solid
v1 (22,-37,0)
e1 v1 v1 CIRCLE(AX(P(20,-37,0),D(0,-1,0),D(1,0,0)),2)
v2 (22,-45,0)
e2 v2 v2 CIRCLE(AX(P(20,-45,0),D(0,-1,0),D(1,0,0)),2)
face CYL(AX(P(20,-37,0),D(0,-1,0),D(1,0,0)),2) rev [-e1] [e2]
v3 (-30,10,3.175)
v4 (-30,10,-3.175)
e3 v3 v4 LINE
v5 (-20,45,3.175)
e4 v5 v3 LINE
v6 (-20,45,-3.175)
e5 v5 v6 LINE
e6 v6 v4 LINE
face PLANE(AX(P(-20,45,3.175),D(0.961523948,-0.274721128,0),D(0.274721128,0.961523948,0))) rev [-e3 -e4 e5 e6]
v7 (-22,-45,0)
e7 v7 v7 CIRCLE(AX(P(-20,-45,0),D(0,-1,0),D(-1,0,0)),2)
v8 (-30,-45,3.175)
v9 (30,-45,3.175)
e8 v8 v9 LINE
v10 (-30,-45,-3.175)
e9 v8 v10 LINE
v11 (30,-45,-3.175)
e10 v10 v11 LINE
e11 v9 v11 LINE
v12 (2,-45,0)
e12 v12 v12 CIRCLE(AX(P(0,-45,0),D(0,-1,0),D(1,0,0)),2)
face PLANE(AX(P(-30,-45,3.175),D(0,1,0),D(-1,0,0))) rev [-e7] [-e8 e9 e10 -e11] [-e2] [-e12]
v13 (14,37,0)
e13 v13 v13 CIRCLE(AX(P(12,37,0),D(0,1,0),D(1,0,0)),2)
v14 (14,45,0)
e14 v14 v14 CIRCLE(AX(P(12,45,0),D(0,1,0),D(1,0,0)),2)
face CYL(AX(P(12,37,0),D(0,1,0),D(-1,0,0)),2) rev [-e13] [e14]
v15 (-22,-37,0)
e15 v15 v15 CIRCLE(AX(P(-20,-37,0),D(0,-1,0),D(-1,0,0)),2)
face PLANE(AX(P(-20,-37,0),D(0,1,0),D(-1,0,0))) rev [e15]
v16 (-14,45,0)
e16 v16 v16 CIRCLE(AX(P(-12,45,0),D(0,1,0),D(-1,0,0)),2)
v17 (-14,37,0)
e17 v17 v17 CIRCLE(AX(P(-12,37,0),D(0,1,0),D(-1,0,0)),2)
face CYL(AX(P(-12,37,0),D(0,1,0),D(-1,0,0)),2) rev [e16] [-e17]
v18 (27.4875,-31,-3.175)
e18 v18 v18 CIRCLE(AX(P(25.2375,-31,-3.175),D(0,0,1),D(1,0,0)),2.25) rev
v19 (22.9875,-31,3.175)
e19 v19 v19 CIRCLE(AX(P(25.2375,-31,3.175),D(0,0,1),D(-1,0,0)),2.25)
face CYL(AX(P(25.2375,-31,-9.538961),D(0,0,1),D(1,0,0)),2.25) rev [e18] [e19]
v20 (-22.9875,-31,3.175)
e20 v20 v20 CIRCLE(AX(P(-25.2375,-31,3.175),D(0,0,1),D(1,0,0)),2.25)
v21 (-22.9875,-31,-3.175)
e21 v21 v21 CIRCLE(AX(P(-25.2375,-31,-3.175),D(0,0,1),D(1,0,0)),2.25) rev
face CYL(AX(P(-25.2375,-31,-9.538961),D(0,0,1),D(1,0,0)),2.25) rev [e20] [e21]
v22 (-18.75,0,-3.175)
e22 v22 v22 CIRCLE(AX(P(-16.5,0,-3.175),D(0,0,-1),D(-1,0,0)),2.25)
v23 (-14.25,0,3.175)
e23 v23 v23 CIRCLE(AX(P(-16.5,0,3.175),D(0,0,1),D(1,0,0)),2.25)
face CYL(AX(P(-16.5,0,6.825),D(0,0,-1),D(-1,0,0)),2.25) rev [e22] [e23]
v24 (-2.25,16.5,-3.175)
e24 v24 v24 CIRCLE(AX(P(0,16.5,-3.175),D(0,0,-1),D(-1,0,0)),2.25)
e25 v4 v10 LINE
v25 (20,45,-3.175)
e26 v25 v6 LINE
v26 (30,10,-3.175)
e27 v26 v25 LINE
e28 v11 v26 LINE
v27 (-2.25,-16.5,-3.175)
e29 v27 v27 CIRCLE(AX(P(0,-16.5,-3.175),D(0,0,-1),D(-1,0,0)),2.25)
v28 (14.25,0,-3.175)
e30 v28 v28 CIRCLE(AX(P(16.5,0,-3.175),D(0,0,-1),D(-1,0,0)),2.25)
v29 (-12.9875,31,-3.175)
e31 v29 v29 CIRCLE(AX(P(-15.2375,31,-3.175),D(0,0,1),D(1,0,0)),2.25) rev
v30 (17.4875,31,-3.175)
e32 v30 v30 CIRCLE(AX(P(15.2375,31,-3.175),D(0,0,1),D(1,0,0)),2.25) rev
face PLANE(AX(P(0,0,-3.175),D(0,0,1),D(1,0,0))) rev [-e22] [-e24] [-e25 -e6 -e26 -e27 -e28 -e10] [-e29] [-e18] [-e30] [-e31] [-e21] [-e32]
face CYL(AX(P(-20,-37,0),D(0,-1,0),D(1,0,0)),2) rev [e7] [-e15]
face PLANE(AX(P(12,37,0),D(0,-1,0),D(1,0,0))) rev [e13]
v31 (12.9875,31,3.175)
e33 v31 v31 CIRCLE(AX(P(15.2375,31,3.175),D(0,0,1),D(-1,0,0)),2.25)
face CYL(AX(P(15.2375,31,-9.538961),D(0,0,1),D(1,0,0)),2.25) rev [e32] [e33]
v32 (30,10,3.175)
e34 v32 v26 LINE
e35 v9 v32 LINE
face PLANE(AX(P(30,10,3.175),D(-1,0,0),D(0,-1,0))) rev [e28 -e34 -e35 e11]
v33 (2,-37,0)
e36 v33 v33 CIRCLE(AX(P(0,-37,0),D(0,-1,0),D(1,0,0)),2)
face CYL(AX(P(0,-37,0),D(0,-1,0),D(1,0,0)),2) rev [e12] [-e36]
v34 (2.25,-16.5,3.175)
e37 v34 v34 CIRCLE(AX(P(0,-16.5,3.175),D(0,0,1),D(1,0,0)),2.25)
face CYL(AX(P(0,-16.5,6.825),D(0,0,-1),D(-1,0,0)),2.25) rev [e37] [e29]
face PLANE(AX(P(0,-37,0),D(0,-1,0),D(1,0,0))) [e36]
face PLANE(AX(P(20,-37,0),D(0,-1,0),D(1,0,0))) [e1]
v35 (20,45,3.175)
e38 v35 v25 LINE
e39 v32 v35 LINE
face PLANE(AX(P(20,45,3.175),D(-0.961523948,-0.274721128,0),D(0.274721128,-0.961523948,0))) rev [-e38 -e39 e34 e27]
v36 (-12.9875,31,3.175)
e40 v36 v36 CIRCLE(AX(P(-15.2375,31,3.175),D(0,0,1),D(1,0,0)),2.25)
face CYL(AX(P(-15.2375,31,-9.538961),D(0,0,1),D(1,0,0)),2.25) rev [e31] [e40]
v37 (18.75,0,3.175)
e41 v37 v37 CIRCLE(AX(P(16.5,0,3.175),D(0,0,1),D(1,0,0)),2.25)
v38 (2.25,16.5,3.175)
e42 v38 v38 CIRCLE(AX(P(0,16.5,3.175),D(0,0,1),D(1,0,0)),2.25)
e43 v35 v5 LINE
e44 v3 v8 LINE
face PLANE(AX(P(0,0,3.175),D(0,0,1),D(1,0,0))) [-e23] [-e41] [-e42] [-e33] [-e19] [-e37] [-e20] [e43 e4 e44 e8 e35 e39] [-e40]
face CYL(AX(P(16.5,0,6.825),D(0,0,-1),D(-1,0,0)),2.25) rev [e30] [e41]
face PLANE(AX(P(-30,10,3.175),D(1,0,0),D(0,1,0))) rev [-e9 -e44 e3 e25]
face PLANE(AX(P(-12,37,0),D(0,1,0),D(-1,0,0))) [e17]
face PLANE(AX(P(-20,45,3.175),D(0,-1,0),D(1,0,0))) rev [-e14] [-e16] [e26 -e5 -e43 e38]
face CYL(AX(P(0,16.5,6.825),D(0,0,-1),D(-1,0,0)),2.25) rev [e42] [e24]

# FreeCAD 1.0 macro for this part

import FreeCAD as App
import Part
import Sketcher
Q = App.Units.Quantity


def add_polygon(sketch, points):
    """Adds a closed chain of lines whose ends are joined by coincident constraints."""
    first, n = sketch.GeometryCount, len(points)
    for a, b in zip(points, points[1:] + points[:1]):
        sketch.addGeometry(Part.LineSegment(App.Vector(*a, 0), App.Vector(*b, 0)), False)
    for i in range(n):
        sketch.addConstraint(Sketcher.Constraint("Coincident", first + i, 2, first + (i + 1) % n, 1))

doc = App.newDocument("Part")
body = doc.addObject("PartDesign::Body", "Body")

# Sketch on XY plane
sketch1 = body.newObject("Sketcher::SketchObject", "Sketch")
sketch1.AttachmentSupport = (doc.getObject("XY_Plane"), [""])
sketch1.MapMode = "FlatFace"
add_polygon(sketch1, [(20, 45), (-20, 45), (-30, 10), (-30, -45), (30, -45), (30, 10)])  # lines 0-5
sketch1.addConstraint(Sketcher.Constraint("Horizontal", 0))
sketch1.addConstraint(Sketcher.Constraint("Vertical", 2))
sketch1.addConstraint(Sketcher.Constraint("Horizontal", 3))
sketch1.addConstraint(Sketcher.Constraint("Vertical", 4))
sketch1.addConstraint(Sketcher.Constraint("Symmetric", 1, 2, 4, 2, -2))
sketch1.addConstraint(Sketcher.Constraint("Equal", 1, 5))
sketch1.addConstraint(Sketcher.Constraint("DistanceX", 0, 2, 0, 1, Q("40 mm")))
sketch1.addConstraint(Sketcher.Constraint("DistanceX", 3, 1, 3, 2, Q("60 mm")))
sketch1.addConstraint(Sketcher.Constraint("DistanceY", 2, 2, 2, 1, Q("55 mm")))
sketch1.addConstraint(Sketcher.Constraint("DistanceY", -1, 1, 0, 2, Q("45 mm")))
sketch1.addConstraint(Sketcher.Constraint("DistanceY", -1, 1, 1, 2, Q("10 mm")))
pad1 = body.newObject("PartDesign::Pad", "Pad")
pad1.Profile = sketch1
pad1.Length = 6.35
pad1.Midplane = True

# Sketch on XZ plane
sketch2 = body.newObject("Sketcher::SketchObject", "Sketch001")
sketch2.AttachmentSupport = (doc.getObject("XZ_Plane"), [""])
sketch2.MapMode = "FlatFace"
sketch2.AttachmentOffset = App.Placement(App.Vector(0, 0, -45), App.Rotation())
sketch2.addGeometry(Part.Circle(App.Vector(-12, 0, 0), App.Vector(0, 0, 1), 2), False)
sketch2.addGeometry(Part.Circle(App.Vector(12, 0, 0), App.Vector(0, 0, 1), 2), False)
sketch2.addConstraint(Sketcher.Constraint("Equal", 0, 1))
sketch2.addConstraint(Sketcher.Constraint("Symmetric", 0, 3, 1, 3, -1, 1))
sketch2.addConstraint(Sketcher.Constraint("PointOnObject", 0, 3, -1))
sketch2.addConstraint(Sketcher.Constraint("Diameter", 0, Q("4 mm")))
sketch2.addConstraint(Sketcher.Constraint("DistanceX", 0, 3, -1, 1, Q("12 mm")))
pocket1 = body.newObject("PartDesign::Pocket", "Pocket")
pocket1.Profile = sketch2
pocket1.Length = 8
pocket1.Reversed = True

# Sketch on XZ plane
sketch3 = body.newObject("Sketcher::SketchObject", "Sketch002")
sketch3.AttachmentSupport = (doc.getObject("XZ_Plane"), [""])
sketch3.MapMode = "FlatFace"
sketch3.AttachmentOffset = App.Placement(App.Vector(0, 0, 45), App.Rotation())
sketch3.addGeometry(Part.Circle(App.Vector(20, 0, 0), App.Vector(0, 0, 1), 2), False)
sketch3.addGeometry(Part.Circle(App.Vector(-20, 0, 0), App.Vector(0, 0, 1), 2), False)
sketch3.addGeometry(Part.Circle(App.Vector(0, 0, 0), App.Vector(0, 0, 1), 2), False)
sketch3.addConstraint(Sketcher.Constraint("Coincident", 2, 3, -1, 1))
sketch3.addConstraint(Sketcher.Constraint("Equal", 0, 1))
sketch3.addConstraint(Sketcher.Constraint("Equal", 1, 2))
sketch3.addConstraint(Sketcher.Constraint("Symmetric", 0, 3, 1, 3, -1, 1))
sketch3.addConstraint(Sketcher.Constraint("PointOnObject", 0, 3, -1))
sketch3.addConstraint(Sketcher.Constraint("Diameter", 0, Q("4 mm")))
sketch3.addConstraint(Sketcher.Constraint("DistanceX", -1, 1, 0, 3, Q("20 mm")))
pocket2 = body.newObject("PartDesign::Pocket", "Pocket001")
pocket2.Profile = sketch3
pocket2.Length = 8

# Sketch on XY plane
sketch4 = body.newObject("Sketcher::SketchObject", "Sketch003")
sketch4.AttachmentSupport = (doc.getObject("XY_Plane"), [""])
sketch4.MapMode = "FlatFace"
sketch4.AttachmentOffset = App.Placement(App.Vector(0, 0, 3.175), App.Rotation())
sketch4.addGeometry(Part.Circle(App.Vector(-25.2375, -31, 0), App.Vector(0, 0, 1), 2.25), False)
sketch4.addGeometry(Part.Circle(App.Vector(25.2375, -31, 0), App.Vector(0, 0, 1), 2.25), False)
sketch4.addGeometry(Part.Circle(App.Vector(-15.2375, 31, 0), App.Vector(0, 0, 1), 2.25), False)
sketch4.addGeometry(Part.Circle(App.Vector(15.2375, 31, 0), App.Vector(0, 0, 1), 2.25), False)
sketch4.addConstraint(Sketcher.Constraint("Equal", 0, 1))
sketch4.addConstraint(Sketcher.Constraint("Equal", 1, 2))
sketch4.addConstraint(Sketcher.Constraint("Equal", 2, 3))
sketch4.addConstraint(Sketcher.Constraint("Symmetric", 0, 3, 1, 3, -2))
sketch4.addConstraint(Sketcher.Constraint("Symmetric", 2, 3, 3, 3, -2))
sketch4.addConstraint(Sketcher.Constraint("Diameter", 0, Q("4.5 mm")))
sketch4.addConstraint(Sketcher.Constraint("DistanceY", 0, 3, -1, 1, Q("31 mm")))
sketch4.addConstraint(Sketcher.Constraint("DistanceY", -1, 1, 2, 3, Q("31 mm")))
sketch4.addConstraint(Sketcher.Constraint("DistanceX", 0, 3, 2, 3, Q("10 mm")))
sketch4.addConstraint(Sketcher.Constraint("DistanceX", 0, 3, 1, 3, Q("50.475 mm")))
pocket3 = body.newObject("PartDesign::Pocket", "Pocket002")
pocket3.Profile = sketch4
pocket3.Length = 6.35

# Sketch on XY plane
sketch5 = body.newObject("Sketcher::SketchObject", "Sketch004")
sketch5.AttachmentSupport = (doc.getObject("XY_Plane"), [""])
sketch5.MapMode = "FlatFace"
sketch5.AttachmentOffset = App.Placement(App.Vector(0, 0, -3.175), App.Rotation())
sketch5.addGeometry(Part.Circle(App.Vector(0, 16.5, 0), App.Vector(0, 0, 1), 2.25), False)
sketch5.addGeometry(Part.Circle(App.Vector(-16.5, 0, 0), App.Vector(0, 0, 1), 2.25), False)
sketch5.addGeometry(Part.Circle(App.Vector(0, -16.5, 0), App.Vector(0, 0, 1), 2.25), False)
sketch5.addGeometry(Part.Circle(App.Vector(16.5, 0, 0), App.Vector(0, 0, 1), 2.25), False)
sketch5.addConstraint(Sketcher.Constraint("Equal", 0, 1))
sketch5.addConstraint(Sketcher.Constraint("Equal", 1, 2))
sketch5.addConstraint(Sketcher.Constraint("Equal", 2, 3))
sketch5.addConstraint(Sketcher.Constraint("Symmetric", 0, 3, 2, 3, -1, 1))
sketch5.addConstraint(Sketcher.Constraint("Symmetric", 1, 3, 3, 3, -1, 1))
sketch5.addConstraint(Sketcher.Constraint("PointOnObject", 0, 3, -2))
sketch5.addConstraint(Sketcher.Constraint("PointOnObject", 1, 3, -1))
sketch5.addConstraint(Sketcher.Constraint("Diameter", 0, Q("4.5 mm")))
sketch5.addConstraint(Sketcher.Constraint("DistanceY", 2, 3, 0, 3, Q("33 mm")))
sketch5.addConstraint(Sketcher.Constraint("DistanceX", 1, 3, 3, 3, Q("33 mm")))
pocket4 = body.newObject("PartDesign::Pocket", "Pocket003")
pocket4.Profile = sketch5
pocket4.Length = 10
pocket4.Reversed = True

doc.recompute()
